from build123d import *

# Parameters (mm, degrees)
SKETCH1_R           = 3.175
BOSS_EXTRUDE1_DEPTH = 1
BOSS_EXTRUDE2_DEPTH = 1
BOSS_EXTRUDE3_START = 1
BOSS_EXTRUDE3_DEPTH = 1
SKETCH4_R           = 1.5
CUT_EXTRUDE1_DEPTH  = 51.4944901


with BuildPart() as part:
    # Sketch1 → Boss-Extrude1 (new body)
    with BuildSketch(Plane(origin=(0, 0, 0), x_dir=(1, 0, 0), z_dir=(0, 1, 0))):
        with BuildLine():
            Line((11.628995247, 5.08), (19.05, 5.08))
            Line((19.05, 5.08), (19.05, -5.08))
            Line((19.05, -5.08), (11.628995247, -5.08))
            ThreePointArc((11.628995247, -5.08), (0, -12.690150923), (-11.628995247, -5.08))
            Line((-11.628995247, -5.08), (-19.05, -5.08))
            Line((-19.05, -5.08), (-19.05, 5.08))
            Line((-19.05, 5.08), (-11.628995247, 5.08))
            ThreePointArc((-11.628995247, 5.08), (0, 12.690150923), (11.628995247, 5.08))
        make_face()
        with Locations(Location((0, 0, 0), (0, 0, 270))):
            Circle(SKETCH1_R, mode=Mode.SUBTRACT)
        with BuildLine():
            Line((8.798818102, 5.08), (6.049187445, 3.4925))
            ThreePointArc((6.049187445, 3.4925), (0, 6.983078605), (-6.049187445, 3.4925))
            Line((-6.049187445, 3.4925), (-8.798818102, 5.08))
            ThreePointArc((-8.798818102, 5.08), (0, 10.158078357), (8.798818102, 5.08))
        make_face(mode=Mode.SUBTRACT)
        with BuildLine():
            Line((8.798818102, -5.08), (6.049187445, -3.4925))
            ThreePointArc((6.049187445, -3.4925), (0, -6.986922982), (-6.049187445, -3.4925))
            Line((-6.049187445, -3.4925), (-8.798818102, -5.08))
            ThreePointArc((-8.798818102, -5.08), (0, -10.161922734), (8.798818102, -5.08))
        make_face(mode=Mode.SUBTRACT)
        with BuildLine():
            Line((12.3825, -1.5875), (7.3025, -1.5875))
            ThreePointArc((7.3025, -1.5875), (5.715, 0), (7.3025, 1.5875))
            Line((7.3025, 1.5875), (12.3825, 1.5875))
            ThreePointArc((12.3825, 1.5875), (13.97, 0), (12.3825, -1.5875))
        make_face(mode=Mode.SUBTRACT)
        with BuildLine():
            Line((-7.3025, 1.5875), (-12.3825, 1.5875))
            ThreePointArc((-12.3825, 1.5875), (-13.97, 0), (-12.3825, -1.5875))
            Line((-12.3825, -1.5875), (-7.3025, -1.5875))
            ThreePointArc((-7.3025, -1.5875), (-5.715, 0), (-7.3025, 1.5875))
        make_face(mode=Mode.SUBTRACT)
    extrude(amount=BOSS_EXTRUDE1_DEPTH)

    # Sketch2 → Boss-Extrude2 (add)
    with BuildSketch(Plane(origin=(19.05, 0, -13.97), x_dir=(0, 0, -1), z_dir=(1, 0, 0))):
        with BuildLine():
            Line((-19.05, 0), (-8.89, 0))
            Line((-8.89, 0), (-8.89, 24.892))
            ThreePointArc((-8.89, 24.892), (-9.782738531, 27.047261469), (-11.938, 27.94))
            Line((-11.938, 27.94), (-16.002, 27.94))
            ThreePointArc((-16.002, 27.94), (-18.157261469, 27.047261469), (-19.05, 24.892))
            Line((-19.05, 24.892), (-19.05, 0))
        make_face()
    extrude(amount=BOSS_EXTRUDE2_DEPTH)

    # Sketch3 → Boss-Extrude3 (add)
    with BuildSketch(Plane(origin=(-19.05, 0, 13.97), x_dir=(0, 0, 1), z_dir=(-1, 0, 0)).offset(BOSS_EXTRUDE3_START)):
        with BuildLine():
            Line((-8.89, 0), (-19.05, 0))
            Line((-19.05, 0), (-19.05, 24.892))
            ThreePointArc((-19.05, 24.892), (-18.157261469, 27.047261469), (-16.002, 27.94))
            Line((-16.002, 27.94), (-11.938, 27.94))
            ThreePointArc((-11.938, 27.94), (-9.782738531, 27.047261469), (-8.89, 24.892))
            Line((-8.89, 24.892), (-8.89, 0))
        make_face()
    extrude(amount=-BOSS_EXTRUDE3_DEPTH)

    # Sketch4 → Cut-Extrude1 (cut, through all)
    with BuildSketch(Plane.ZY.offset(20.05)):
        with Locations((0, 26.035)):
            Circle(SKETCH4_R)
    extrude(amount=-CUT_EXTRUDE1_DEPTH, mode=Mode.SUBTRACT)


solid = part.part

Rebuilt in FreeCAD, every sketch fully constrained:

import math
import FreeCAD as App
import Part
import Sketcher
Q = App.Units.Quantity

doc = App.newDocument("Part")
body = doc.addObject("PartDesign::Body", "Body")

# Sketch on XZ plane
sketch1 = body.newObject("Sketcher::SketchObject", "Sketch")
sketch1.AttachmentSupport = (doc.getObject("XZ_Plane"), [""])
sketch1.MapMode = "FlatFace"
sketch1.addGeometry(Part.LineSegment(App.Vector(19.1, -5.1, 0), App.Vector(11.6, -5.1, 0)), False)
sketch1.addGeometry(Part.ArcOfCircle(Part.Circle(App.Vector(0, 0, 0), App.Vector(0, 0, 1), 12.7), math.radians(-156), math.radians(-24)), False)
sketch1.addGeometry(Part.LineSegment(App.Vector(-11.6, -5.1, 0), App.Vector(-19.1, -5.1, 0)), False)
sketch1.addGeometry(Part.LineSegment(App.Vector(-19.1, -5.1, 0), App.Vector(-19.1, 5.1, 0)), False)
sketch1.addGeometry(Part.LineSegment(App.Vector(-19.1, 5.1, 0), App.Vector(-11.6, 5.1, 0)), False)
sketch1.addGeometry(Part.ArcOfCircle(Part.Circle(App.Vector(0, 0, 0), App.Vector(0, 0, 1), 12.7), math.radians(24), math.radians(156)), False)
sketch1.addGeometry(Part.LineSegment(App.Vector(11.6, 5.1, 0), App.Vector(19.1, 5.1, 0)), False)
sketch1.addGeometry(Part.LineSegment(App.Vector(19.1, 5.1, 0), App.Vector(19.1, -5.1, 0)), False)
sketch1.addGeometry(Part.ArcOfCircle(Part.Circle(App.Vector(0, 0, 0), App.Vector(0, 0, 1), 10.2), math.radians(30), math.radians(150)), False)
sketch1.addGeometry(Part.LineSegment(App.Vector(-8.8, 5.1, 0), App.Vector(-6, 3.5, 0)), False)
sketch1.addGeometry(Part.ArcOfCircle(Part.Circle(App.Vector(0, 0, 0), App.Vector(0, 0, 1), 7), math.radians(30), math.radians(150)), False)
sketch1.addGeometry(Part.LineSegment(App.Vector(6, 3.5, 0), App.Vector(8.8, 5.1, 0)), False)
sketch1.addGeometry(Part.LineSegment(App.Vector(12.4, 1.6, 0), App.Vector(7.3, 1.6, 0)), False)
sketch1.addGeometry(Part.ArcOfCircle(Part.Circle(App.Vector(7.3, 0, 0), App.Vector(0, 0, 1), 1.6), math.radians(90), math.radians(270)), False)
sketch1.addGeometry(Part.LineSegment(App.Vector(7.3, -1.6, 0), App.Vector(12.4, -1.6, 0)), False)
sketch1.addGeometry(Part.ArcOfCircle(Part.Circle(App.Vector(12.4, 0, 0), App.Vector(0, 0, 1), 1.6), math.radians(-90), math.radians(90)), False)
sketch1.addGeometry(Part.Circle(App.Vector(0, 0, 0), App.Vector(0, 0, 1), 3.2), False)
sketch1.addGeometry(Part.LineSegment(App.Vector(8.8, -5.1, 0), App.Vector(6, -3.5, 0)), False)
sketch1.addGeometry(Part.ArcOfCircle(Part.Circle(App.Vector(0, 0, 0), App.Vector(0, 0, 1), 7), math.radians(-150), math.radians(-30)), False)
sketch1.addGeometry(Part.LineSegment(App.Vector(-6, -3.5, 0), App.Vector(-8.8, -5.1, 0)), False)
sketch1.addGeometry(Part.ArcOfCircle(Part.Circle(App.Vector(0, 0, 0), App.Vector(0, 0, 1), 10.2), math.radians(-150), math.radians(-30)), False)
sketch1.addGeometry(Part.ArcOfCircle(Part.Circle(App.Vector(-7.3, 0, 0), App.Vector(0, 0, 1), 1.6), math.radians(-90), math.radians(90)), False)
sketch1.addGeometry(Part.LineSegment(App.Vector(-7.3, 1.6, 0), App.Vector(-12.4, 1.6, 0)), False)
sketch1.addGeometry(Part.ArcOfCircle(Part.Circle(App.Vector(-12.4, 0, 0), App.Vector(0, 0, 1), 1.6), math.radians(90), math.radians(270)), False)
sketch1.addGeometry(Part.LineSegment(App.Vector(-12.4, -1.6, 0), App.Vector(-7.3, -1.6, 0)), False)
sketch1.addConstraint(Sketcher.Constraint("Coincident", 0, 2, 1, 2))
sketch1.addConstraint(Sketcher.Constraint("Coincident", 1, 1, 2, 1))
sketch1.addConstraint(Sketcher.Constraint("Coincident", 2, 2, 3, 1))
sketch1.addConstraint(Sketcher.Constraint("Coincident", 3, 2, 4, 1))
sketch1.addConstraint(Sketcher.Constraint("Coincident", 4, 2, 5, 2))
sketch1.addConstraint(Sketcher.Constraint("Coincident", 5, 1, 6, 1))
sketch1.addConstraint(Sketcher.Constraint("Coincident", 6, 2, 7, 1))
sketch1.addConstraint(Sketcher.Constraint("Coincident", 7, 2, 0, 1))
sketch1.addConstraint(Sketcher.Constraint("Coincident", 8, 2, 9, 1))
sketch1.addConstraint(Sketcher.Constraint("Coincident", 9, 2, 10, 2))
sketch1.addConstraint(Sketcher.Constraint("Coincident", 10, 1, 11, 1))
sketch1.addConstraint(Sketcher.Constraint("Coincident", 11, 2, 8, 1))
sketch1.addConstraint(Sketcher.Constraint("Tangent", 12, 2, 13, 1))
sketch1.addConstraint(Sketcher.Constraint("Tangent", 13, 2, 14, 1))
sketch1.addConstraint(Sketcher.Constraint("Tangent", 14, 2, 15, 1))
sketch1.addConstraint(Sketcher.Constraint("Tangent", 15, 2, 12, 1))
sketch1.addConstraint(Sketcher.Constraint("Coincident", 17, 2, 18, 2))
sketch1.addConstraint(Sketcher.Constraint("Coincident", 18, 1, 19, 1))
sketch1.addConstraint(Sketcher.Constraint("Coincident", 19, 2, 20, 1))
sketch1.addConstraint(Sketcher.Constraint("Coincident", 20, 2, 17, 1))
sketch1.addConstraint(Sketcher.Constraint("Tangent", 21, 2, 22, 1))
sketch1.addConstraint(Sketcher.Constraint("Tangent", 22, 2, 23, 1))
sketch1.addConstraint(Sketcher.Constraint("Tangent", 23, 2, 24, 1))
sketch1.addConstraint(Sketcher.Constraint("Tangent", 24, 2, 21, 1))
sketch1.addConstraint(Sketcher.Constraint("Horizontal", 0))
sketch1.addConstraint(Sketcher.Constraint("Horizontal", 2))
sketch1.addConstraint(Sketcher.Constraint("Vertical", 3))
sketch1.addConstraint(Sketcher.Constraint("Horizontal", 4))
sketch1.addConstraint(Sketcher.Constraint("Horizontal", 6))
sketch1.addConstraint(Sketcher.Constraint("Vertical", 7))
sketch1.addConstraint(Sketcher.Constraint("Horizontal", 12))
sketch1.addConstraint(Sketcher.Constraint("Horizontal", 14))
sketch1.addConstraint(Sketcher.Constraint("Horizontal", 22))
sketch1.addConstraint(Sketcher.Constraint("Horizontal", 24))
sketch1.addConstraint(Sketcher.Constraint("Coincident", 1, 3, -1, 1))
sketch1.addConstraint(Sketcher.Constraint("Coincident", 5, 3, -1, 1))
sketch1.addConstraint(Sketcher.Constraint("Coincident", 16, 3, -1, 1))
sketch1.addConstraint(Sketcher.Constraint("Coincident", 10, 3, 8, 3))
sketch1.addConstraint(Sketcher.Constraint("Coincident", 18, 3, 8, 3))
sketch1.addConstraint(Sketcher.Constraint("Coincident", 20, 3, 8, 3))
sketch1.addConstraint(Sketcher.Constraint("Equal", 1, 5))
sketch1.addConstraint(Sketcher.Constraint("Equal", 15, 21))
sketch1.addConstraint(Sketcher.Constraint("Symmetric", 13, 3, 21, 3, -1, 1))
sketch1.addConstraint(Sketcher.Constraint("Symmetric", 2, 2, 6, 2, -1, 1))
sketch1.addConstraint(Sketcher.Constraint("Symmetric", 9, 2, 17, 2, -1, 1))
sketch1.addConstraint(Sketcher.Constraint("Symmetric", 10, 1, 18, 1, -1, 1))
sketch1.addConstraint(Sketcher.Constraint("Symmetric", 11, 2, 19, 2, -1, 1))
sketch1.addConstraint(Sketcher.Constraint("Symmetric", 15, 3, 23, 3, -2))
sketch1.addConstraint(Sketcher.Constraint("Parallel", 9, 17))
sketch1.addConstraint(Sketcher.Constraint("Horizontal", 0, 2, 1, 1))
sketch1.addConstraint(Sketcher.Constraint("Horizontal", 4, 2, 5, 1))
sketch1.addConstraint(Sketcher.Constraint("Horizontal", 6, 2, 8, 2))
sketch1.addConstraint(Sketcher.Constraint("Horizontal", 9, 2, 10, 1))
sketch1.addConstraint(Sketcher.Constraint("Horizontal", 8, 2, 11, 2))
sketch1.addConstraint(Sketcher.Constraint("Diameter", 16, Q("0.25 in")))
sketch1.addConstraint(Sketcher.Constraint("DistanceX", 12, 2, 12, 1, Q("0.2 in")))
sketch1.addConstraint(Sketcher.Constraint("DistanceY", 3, 1, 3, 2, Q("0.4 in")))
sketch1.addConstraint(Sketcher.Constraint("Angle", 9, Q("-30 deg")))
sketch1.addConstraint(Sketcher.Constraint("Radius", 13, Q("0.0625 in")))
sketch1.addConstraint(Sketcher.Constraint("DistanceY", 13, 2, 10, 1, Q("0.2 in")))
sketch1.addConstraint(Sketcher.Constraint("DistanceX", 2, 2, -1, 1, Q("0.75 in")))
sketch1.addConstraint(Sketcher.Constraint("Radius", 1, Q("12.690151 mm")))
sketch1.addConstraint(Sketcher.Constraint("Radius", 8, Q("10.158078 mm")))
sketch1.addConstraint(Sketcher.Constraint("DistanceX", -1, 1, 13, 3, Q("0.2875 in")))
sketch1.addConstraint(Sketcher.Constraint("Radius", 18, Q("6.986923 mm")))
pad1 = body.newObject("PartDesign::Pad", "Pad")
pad1.Profile = sketch1
pad1.Length = 1
pad1.Reversed = True

# Sketch on YZ plane
sketch2 = body.newObject("Sketcher::SketchObject", "Sketch001")
sketch2.AttachmentSupport = (doc.getObject("YZ_Plane"), [""])
sketch2.MapMode = "FlatFace"
sketch2.AttachmentOffset = App.Placement(App.Vector(0, 0, 0.75 * 25.4), App.Rotation())
sketch2.addGeometry(Part.LineSegment(App.Vector(0, 5.1, 0), App.Vector(0, -5.1, 0)), False)
sketch2.addGeometry(Part.LineSegment(App.Vector(0, -5.1, 0), App.Vector(24.9, -5.1, 0)), False)
sketch2.addGeometry(Part.ArcOfCircle(Part.Circle(App.Vector(24.9, -2, 0), App.Vector(0, 0, 1), 3), math.radians(-90), math.radians(0)), False)
sketch2.addGeometry(Part.LineSegment(App.Vector(27.9, -2, 0), App.Vector(27.9, 2, 0)), False)
sketch2.addGeometry(Part.ArcOfCircle(Part.Circle(App.Vector(24.9, 2, 0), App.Vector(0, 0, 1), 3), math.radians(0), math.radians(90)), False)
sketch2.addGeometry(Part.LineSegment(App.Vector(24.9, 5.1, 0), App.Vector(0, 5.1, 0)), False)
sketch2.addConstraint(Sketcher.Constraint("Coincident", 0, 2, 1, 1))
sketch2.addConstraint(Sketcher.Constraint("Tangent", 1, 2, 2, 1))
sketch2.addConstraint(Sketcher.Constraint("Tangent", 2, 2, 3, 1))
sketch2.addConstraint(Sketcher.Constraint("Tangent", 3, 2, 4, 1))
sketch2.addConstraint(Sketcher.Constraint("Tangent", 4, 2, 5, 1))
sketch2.addConstraint(Sketcher.Constraint("Coincident", 5, 2, 0, 1))
sketch2.addConstraint(Sketcher.Constraint("Vertical", 0))
sketch2.addConstraint(Sketcher.Constraint("Horizontal", 1))
sketch2.addConstraint(Sketcher.Constraint("Vertical", 3))
sketch2.addConstraint(Sketcher.Constraint("Horizontal", 5))
sketch2.addConstraint(Sketcher.Constraint("Equal", 2, 4))
sketch2.addConstraint(Sketcher.Constraint("Symmetric", 0, 2, 5, 2, -1, 1))
sketch2.addConstraint(Sketcher.Constraint("Radius", 2, Q("0.12 in")))
sketch2.addConstraint(Sketcher.Constraint("DistanceY", 0, 2, 0, 1, Q("0.4 in")))
sketch2.addConstraint(Sketcher.Constraint("DistanceX", 1, 1, 1, 2, Q("0.98 in")))
pad2 = body.newObject("PartDesign::Pad", "Pad001")
pad2.Profile = sketch2
pad2.Length = 1

# Sketch on YZ plane
sketch3 = body.newObject("Sketcher::SketchObject", "Sketch002")
sketch3.AttachmentSupport = (doc.getObject("YZ_Plane"), [""])
sketch3.MapMode = "FlatFace"
sketch3.AttachmentOffset = App.Placement(App.Vector(0, 0, -20.05), App.Rotation())
sketch3.addGeometry(Part.LineSegment(App.Vector(0, -5.1, 0), App.Vector(0, 5.1, 0)), False)
sketch3.addGeometry(Part.LineSegment(App.Vector(0, 5.1, 0), App.Vector(24.9, 5.1, 0)), False)
sketch3.addGeometry(Part.ArcOfCircle(Part.Circle(App.Vector(24.9, 2, 0), App.Vector(0, 0, 1), 3), math.radians(0), math.radians(90)), False)
sketch3.addGeometry(Part.LineSegment(App.Vector(27.9, 2, 0), App.Vector(27.9, -2, 0)), False)
sketch3.addGeometry(Part.ArcOfCircle(Part.Circle(App.Vector(24.9, -2, 0), App.Vector(0, 0, 1), 3), math.radians(-90), math.radians(0)), False)
sketch3.addGeometry(Part.LineSegment(App.Vector(24.9, -5.1, 0), App.Vector(0, -5.1, 0)), False)
sketch3.addConstraint(Sketcher.Constraint("Coincident", 0, 2, 1, 1))
sketch3.addConstraint(Sketcher.Constraint("Tangent", 1, 2, 2, 2))
sketch3.addConstraint(Sketcher.Constraint("Tangent", 2, 1, 3, 1))
sketch3.addConstraint(Sketcher.Constraint("Tangent", 3, 2, 4, 2))
sketch3.addConstraint(Sketcher.Constraint("Tangent", 4, 1, 5, 1))
sketch3.addConstraint(Sketcher.Constraint("Coincident", 5, 2, 0, 1))
sketch3.addConstraint(Sketcher.Constraint("Vertical", 0))
sketch3.addConstraint(Sketcher.Constraint("Horizontal", 1))
sketch3.addConstraint(Sketcher.Constraint("Vertical", 3))
sketch3.addConstraint(Sketcher.Constraint("Horizontal", 5))
sketch3.addConstraint(Sketcher.Constraint("Equal", 2, 4))
sketch3.addConstraint(Sketcher.Constraint("Symmetric", 0, 2, 5, 2, -1, 1))
sketch3.addConstraint(Sketcher.Constraint("Radius", 2, Q("0.12 in")))
sketch3.addConstraint(Sketcher.Constraint("DistanceY", 0, 1, 0, 2, Q("0.4 in")))
sketch3.addConstraint(Sketcher.Constraint("DistanceX", 1, 1, 1, 2, Q("0.98 in")))
pad3 = body.newObject("PartDesign::Pad", "Pad002")
pad3.Profile = sketch3
pad3.Length = 1

# Sketch on YZ plane
sketch4 = body.newObject("Sketcher::SketchObject", "Sketch003")
sketch4.AttachmentSupport = (doc.getObject("YZ_Plane"), [""])
sketch4.MapMode = "FlatFace"
sketch4.AttachmentOffset = App.Placement(App.Vector(0, 0, -20.05), App.Rotation())
sketch4.addGeometry(Part.Circle(App.Vector(26, 0, 0), App.Vector(0, 0, 1), 1.5), False)
sketch4.addConstraint(Sketcher.Constraint("PointOnObject", 0, 3, -1))
sketch4.addConstraint(Sketcher.Constraint("Diameter", 0, Q("3 mm")))
sketch4.addConstraint(Sketcher.Constraint("DistanceX", -1, 1, 0, 3, Q("1.025 in")))
pocket1 = body.newObject("PartDesign::Pocket", "Pocket")
pocket1.Profile = sketch4
pocket1.Type = "ThroughAll"
pocket1.Reversed = True

doc.recompute()
